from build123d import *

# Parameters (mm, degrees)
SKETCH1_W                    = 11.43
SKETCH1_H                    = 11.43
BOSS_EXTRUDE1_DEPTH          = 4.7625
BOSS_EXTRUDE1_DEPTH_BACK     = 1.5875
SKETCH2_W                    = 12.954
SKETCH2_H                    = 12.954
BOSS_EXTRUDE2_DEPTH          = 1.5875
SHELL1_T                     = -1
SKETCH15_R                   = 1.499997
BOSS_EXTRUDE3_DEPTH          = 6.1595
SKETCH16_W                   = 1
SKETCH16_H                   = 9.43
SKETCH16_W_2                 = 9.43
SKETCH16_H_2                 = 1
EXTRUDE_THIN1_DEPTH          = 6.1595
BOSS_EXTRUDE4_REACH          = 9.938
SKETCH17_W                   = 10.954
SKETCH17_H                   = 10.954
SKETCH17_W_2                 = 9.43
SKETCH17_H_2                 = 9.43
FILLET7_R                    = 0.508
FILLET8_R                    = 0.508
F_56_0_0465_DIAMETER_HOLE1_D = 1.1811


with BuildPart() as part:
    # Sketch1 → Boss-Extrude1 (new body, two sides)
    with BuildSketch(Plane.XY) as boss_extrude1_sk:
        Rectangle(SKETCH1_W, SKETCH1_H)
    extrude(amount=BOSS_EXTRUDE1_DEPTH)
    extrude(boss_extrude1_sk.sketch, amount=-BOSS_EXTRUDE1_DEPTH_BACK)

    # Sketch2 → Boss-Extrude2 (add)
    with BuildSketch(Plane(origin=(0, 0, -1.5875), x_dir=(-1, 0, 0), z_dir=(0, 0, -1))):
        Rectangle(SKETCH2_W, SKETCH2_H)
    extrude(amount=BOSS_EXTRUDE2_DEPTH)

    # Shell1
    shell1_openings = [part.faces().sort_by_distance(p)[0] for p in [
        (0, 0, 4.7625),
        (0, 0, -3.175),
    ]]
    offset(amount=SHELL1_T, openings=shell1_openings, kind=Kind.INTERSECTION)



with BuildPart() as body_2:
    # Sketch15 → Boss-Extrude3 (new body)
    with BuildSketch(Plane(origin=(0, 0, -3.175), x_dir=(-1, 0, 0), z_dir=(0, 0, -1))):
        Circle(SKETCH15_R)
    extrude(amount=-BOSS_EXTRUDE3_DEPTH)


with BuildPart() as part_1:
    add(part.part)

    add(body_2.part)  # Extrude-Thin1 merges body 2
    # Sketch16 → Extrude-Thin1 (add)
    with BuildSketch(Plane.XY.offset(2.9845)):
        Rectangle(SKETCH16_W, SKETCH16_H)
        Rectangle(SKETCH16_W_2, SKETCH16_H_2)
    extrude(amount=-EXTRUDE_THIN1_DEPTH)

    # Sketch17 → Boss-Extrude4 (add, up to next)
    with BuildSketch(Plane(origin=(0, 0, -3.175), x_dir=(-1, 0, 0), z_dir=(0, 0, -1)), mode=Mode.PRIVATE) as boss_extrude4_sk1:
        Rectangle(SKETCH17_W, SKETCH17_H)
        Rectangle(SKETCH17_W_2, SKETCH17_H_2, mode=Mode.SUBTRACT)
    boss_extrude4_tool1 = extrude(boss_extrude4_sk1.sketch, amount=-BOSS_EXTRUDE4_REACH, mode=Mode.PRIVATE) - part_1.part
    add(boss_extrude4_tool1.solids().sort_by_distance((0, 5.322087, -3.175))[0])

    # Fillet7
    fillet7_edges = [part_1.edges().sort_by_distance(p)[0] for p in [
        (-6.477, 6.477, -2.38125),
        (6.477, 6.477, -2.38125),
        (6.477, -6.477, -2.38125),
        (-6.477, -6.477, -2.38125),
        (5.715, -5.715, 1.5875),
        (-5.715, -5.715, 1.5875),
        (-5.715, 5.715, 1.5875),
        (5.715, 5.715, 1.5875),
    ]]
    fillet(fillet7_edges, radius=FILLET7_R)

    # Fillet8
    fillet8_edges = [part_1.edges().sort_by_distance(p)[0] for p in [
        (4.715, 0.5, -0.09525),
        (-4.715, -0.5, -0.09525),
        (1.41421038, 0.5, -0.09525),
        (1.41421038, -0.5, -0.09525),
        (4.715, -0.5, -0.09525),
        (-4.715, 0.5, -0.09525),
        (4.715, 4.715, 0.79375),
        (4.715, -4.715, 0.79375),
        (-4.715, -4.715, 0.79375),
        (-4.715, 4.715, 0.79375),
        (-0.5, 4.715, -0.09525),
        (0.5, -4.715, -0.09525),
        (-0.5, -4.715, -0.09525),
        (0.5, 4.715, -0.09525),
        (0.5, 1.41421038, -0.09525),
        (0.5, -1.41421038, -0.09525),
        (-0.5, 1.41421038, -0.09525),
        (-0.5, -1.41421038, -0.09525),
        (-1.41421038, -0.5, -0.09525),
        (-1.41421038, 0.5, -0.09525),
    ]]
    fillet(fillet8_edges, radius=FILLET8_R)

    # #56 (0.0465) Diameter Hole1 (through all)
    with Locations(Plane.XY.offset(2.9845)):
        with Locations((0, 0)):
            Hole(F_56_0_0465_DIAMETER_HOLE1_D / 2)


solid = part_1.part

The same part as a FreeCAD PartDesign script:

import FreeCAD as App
import Part
import Sketcher
Q = App.Units.Quantity


def edges_at(feature, points):
    """Names of the edges that pass closest to the given points."""
    edges = feature.Shape.Edges
    near = lambda p: min(range(len(edges)), key=lambda i: edges[i].distToShape(Part.Vertex(*p))[0])
    return sorted({f"Edge{near(p) + 1}" for p in points})


def faces_at(feature, points):
    """Names of the faces that lie closest to the given points."""
    faces = feature.Shape.Faces
    near = lambda p: min(range(len(faces)), key=lambda i: faces[i].distToShape(Part.Vertex(*p))[0])
    return sorted({f"Face{near(p) + 1}" for p in points})


def add_polygon(sketch, points):
    """Adds a closed chain of lines whose ends are joined by coincident constraints."""
    first, n = sketch.GeometryCount, len(points)
    for a, b in zip(points, points[1:] + points[:1]):
        sketch.addGeometry(Part.LineSegment(App.Vector(*a, 0), App.Vector(*b, 0)), False)
    for i in range(n):
        sketch.addConstraint(Sketcher.Constraint("Coincident", first + i, 2, first + (i + 1) % n, 1))

doc = App.newDocument("Part")
params = doc.addObject("Spreadsheet::Sheet", "Params")
for row, (alias, value) in enumerate([
    ("sketch1_width", "0.45 in"),
    ("pad1_length", "0.1875 in"),
    ("pad1_length2", "0.0625 in"),
    ("sketch2_width", "0.51 in"),
    ("pad2_length", "0.0625 in"),
    ("thickness_wall", "1 mm"),
    ("pad3_length", "0.2425 in"),
    ("pad4_length", "0.2425 in"),
    ("fillet_radius", "0.02 in"),
    ("fillet2_radius", "0.02 in"),
    ("hole_diameter", "0.0465 in"),
], start=1):
    params.set(f"A{row}", alias)
    params.set(f"B{row}", "=" + value)
    params.setAlias(f"B{row}", alias)

body = doc.addObject("PartDesign::Body", "Body")

# Sketch on XY plane
sketch1 = body.newObject("Sketcher::SketchObject", "Sketch")
sketch1.AttachmentSupport = (doc.getObject("XY_Plane"), [""])
sketch1.MapMode = "FlatFace"
add_polygon(sketch1, [(-6, 6), (-6, -6), (6, -6), (6, 6)])  # lines 0-3
sketch1.addConstraint(Sketcher.Constraint("Vertical", 0))
sketch1.addConstraint(Sketcher.Constraint("Horizontal", 1))
sketch1.addConstraint(Sketcher.Constraint("Vertical", 2))
sketch1.addConstraint(Sketcher.Constraint("Horizontal", 3))
sketch1.addConstraint(Sketcher.Constraint("Symmetric", 0, 2, 2, 2, -1, 1))
sketch1.addConstraint(Sketcher.Constraint("Equal", 3, 0))
sketch1.addConstraint(Sketcher.Constraint("DistanceX", 1, 1, 1, 2, Q("0.45 in")))
sketch1.setExpression("Constraints[10]", "Params.sketch1_width")
pad1 = body.newObject("PartDesign::Pad", "Pad")
pad1.Profile = sketch1
pad1.Type = "TwoLengths"
pad1.setExpression("Length", "Params.pad1_length")
pad1.setExpression("Length2", "Params.pad1_length2")

# Sketch on XY plane
sketch2 = body.newObject("Sketcher::SketchObject", "Sketch001")
sketch2.AttachmentSupport = (doc.getObject("XY_Plane"), [""])
sketch2.MapMode = "FlatFace"
sketch2.AttachmentOffset = App.Placement(App.Vector(0, 0, -0.0625 * 25.4), App.Rotation())
add_polygon(sketch2, [(6, 6), (6, -6), (-6, -6), (-6, 6)])  # lines 0-3
sketch2.addConstraint(Sketcher.Constraint("Vertical", 0))
sketch2.addConstraint(Sketcher.Constraint("Horizontal", 1))
sketch2.addConstraint(Sketcher.Constraint("Vertical", 2))
sketch2.addConstraint(Sketcher.Constraint("Horizontal", 3))
sketch2.addConstraint(Sketcher.Constraint("Symmetric", 0, 2, 2, 2, -1, 1))
sketch2.addConstraint(Sketcher.Constraint("Equal", 3, 0))
sketch2.addConstraint(Sketcher.Constraint("DistanceX", 1, 2, 1, 1, Q("0.51 in")))
sketch2.setExpression("Constraints[10]", "Params.sketch2_width")
pad2 = body.newObject("PartDesign::Pad", "Pad001")
pad2.Profile = sketch2
pad2.setExpression("Length", "Params.pad2_length")
pad2.Reversed = True
doc.recompute()

thickness = body.newObject("PartDesign::Thickness", "Thickness")
thickness.Base = (pad2, faces_at(pad2, [(0, 0, 4.763), (0, 0, -3.175)]))
thickness.setExpression("Value", "Params.thickness_wall")
thickness.Reversed = True
thickness.Join = "Intersection"
body2 = doc.addObject("PartDesign::Body", "Body001")

# Sketch on XY plane
sketch3 = body2.newObject("Sketcher::SketchObject", "Sketch002")
sketch3.AttachmentSupport = (doc.getObject("XY_Plane001"), [""])
sketch3.MapMode = "FlatFace"
sketch3.AttachmentOffset = App.Placement(App.Vector(0, 0, -0.125 * 25.4), App.Rotation())
sketch3.addGeometry(Part.Circle(App.Vector(0, 0, 0), App.Vector(0, 0, 1), 1.5), False)
sketch3.addConstraint(Sketcher.Constraint("Coincident", 0, 3, -1, 1))
sketch3.addConstraint(Sketcher.Constraint("Diameter", 0, 2.999994))
pad3 = body2.newObject("PartDesign::Pad", "Pad002")
pad3.Profile = sketch3
pad3.setExpression("Length", "Params.pad3_length")
body.AllowCompound = True
doc.recompute()

boolean = body.newObject("PartDesign::Boolean", "Boolean")
boolean.Type = "Fuse"
boolean.addObjects([body2])

# Sketch on XY plane
sketch4 = body.newObject("Sketcher::SketchObject", "Sketch003")
sketch4.AttachmentSupport = (doc.getObject("XY_Plane"), [""])
sketch4.MapMode = "FlatFace"
sketch4.AttachmentOffset = App.Placement(App.Vector(0, 0, 0.1175 * 25.4), App.Rotation())
add_polygon(sketch4, [(-0.5, -0.5), (-0.5, -4.7), (0.5, -4.7), (0.5, -0.5), (4.7, -0.5), (4.7, 0.5), (0.5, 0.5), (0.5, 4.7), (-0.5, 4.7), (-0.5, 0.5), (-4.7, 0.5), (-4.7, -0.5)])  # lines 0-11
sketch4.addConstraint(Sketcher.Constraint("Vertical", 0))
sketch4.addConstraint(Sketcher.Constraint("Horizontal", 1))
sketch4.addConstraint(Sketcher.Constraint("Vertical", 2))
sketch4.addConstraint(Sketcher.Constraint("Horizontal", 3))
sketch4.addConstraint(Sketcher.Constraint("Vertical", 4))
sketch4.addConstraint(Sketcher.Constraint("Horizontal", 5))
sketch4.addConstraint(Sketcher.Constraint("Vertical", 6))
sketch4.addConstraint(Sketcher.Constraint("Horizontal", 7))
sketch4.addConstraint(Sketcher.Constraint("Vertical", 8))
sketch4.addConstraint(Sketcher.Constraint("Horizontal", 9))
sketch4.addConstraint(Sketcher.Constraint("Vertical", 10))
sketch4.addConstraint(Sketcher.Constraint("Horizontal", 11))
sketch4.addConstraint(Sketcher.Constraint("Symmetric", 0, 2, 6, 2, -1, 1))
sketch4.addConstraint(Sketcher.Constraint("Symmetric", 2, 2, 8, 2, -1, 1))
sketch4.addConstraint(Sketcher.Constraint("Symmetric", 4, 2, 10, 2, -1, 1))
sketch4.addConstraint(Sketcher.Constraint("Symmetric", 5, 2, 8, 2, -2))
sketch4.addConstraint(Sketcher.Constraint("Equal", 11, 0))
sketch4.addConstraint(Sketcher.Constraint("Equal", 7, 4))
sketch4.addConstraint(Sketcher.Constraint("DistanceX", 1, 1, 1, 2, 1.0))
sketch4.addConstraint(Sketcher.Constraint("DistanceX", 3, 1, 3, 2, 4.215))
pad4 = body.newObject("PartDesign::Pad", "Pad003")
pad4.Profile = sketch4
pad4.setExpression("Length", "Params.pad4_length")
pad4.Reversed = True

# Sketch on XY plane
sketch5 = body.newObject("Sketcher::SketchObject", "Sketch004")
sketch5.AttachmentSupport = (doc.getObject("XY_Plane"), [""])
sketch5.MapMode = "FlatFace"
sketch5.AttachmentOffset = App.Placement(App.Vector(0, 0, -0.125 * 25.4), App.Rotation())
add_polygon(sketch5, [(5, 5), (5, -5), (-5, -5), (-5, 5)])  # lines 0-3
add_polygon(sketch5, [(-5, -5), (5, -5), (5, 5), (-5, 5)])  # lines 4-7
sketch5.addConstraint(Sketcher.Constraint("Vertical", 0))
sketch5.addConstraint(Sketcher.Constraint("Horizontal", 1))
sketch5.addConstraint(Sketcher.Constraint("Vertical", 2))
sketch5.addConstraint(Sketcher.Constraint("Horizontal", 3))
sketch5.addConstraint(Sketcher.Constraint("Horizontal", 4))
sketch5.addConstraint(Sketcher.Constraint("Vertical", 5))
sketch5.addConstraint(Sketcher.Constraint("Horizontal", 6))
sketch5.addConstraint(Sketcher.Constraint("Vertical", 7))
sketch5.addConstraint(Sketcher.Constraint("Symmetric", 0, 2, 2, 2, -1, 1))
sketch5.addConstraint(Sketcher.Constraint("Symmetric", 4, 2, 6, 2, -1, 1))
sketch5.addConstraint(Sketcher.Constraint("Equal", 3, 0))
sketch5.addConstraint(Sketcher.Constraint("Equal", 6, 5))
sketch5.addConstraint(Sketcher.Constraint("DistanceX", 4, 2, 0, 2, Q("0.03 in")))
sketch5.addConstraint(Sketcher.Constraint("DistanceX", 1, 2, 1, 1, 10.954))
pad5 = body.newObject("PartDesign::Pad", "Pad004")
pad5.Profile = sketch5
pad5.Type = "UpToFirst"
doc.recompute()

fillet = body.newObject("PartDesign::Fillet", "Fillet")
fillet.Base = (pad5, edges_at(pad5, [
    (-6.477, 6.477, -2.381),
    (6.477, 6.477, -2.381),
    (6.477, -6.477, -2.381),
    (-6.477, -6.477, -2.381),
    (5.715, -5.715, 1.587),
    (-5.715, -5.715, 1.587),
    (-5.715, 5.715, 1.587),
    (5.715, 5.715, 1.587),
]))
fillet.setExpression("Radius", "Params.fillet_radius")
doc.recompute()

fillet2 = body.newObject("PartDesign::Fillet", "Fillet001")
fillet2.Base = (fillet, edges_at(fillet, [
    (4.715, 0.5, -0.095),
    (-4.715, -0.5, -0.095),
    (1.414, 0.5, -0.095),
    (1.414, -0.5, -0.095),
    (4.715, -0.5, -0.095),
    (-4.715, 0.5, -0.095),
    (4.715, 4.715, 0.794),
    (4.715, -4.715, 0.794),
    (-4.715, -4.715, 0.794),
    (-4.715, 4.715, 0.794),
    (-0.5, 4.715, -0.095),
    (0.5, -4.715, -0.095),
    (-0.5, -4.715, -0.095),
    (0.5, 4.715, -0.095),
    (0.5, 1.414, -0.095),
    (0.5, -1.414, -0.095),
    (-0.5, 1.414, -0.095),
    (-0.5, -1.414, -0.095),
    (-1.414, -0.5, -0.095),
    (-1.414, 0.5, -0.095),
]))
fillet2.setExpression("Radius", "Params.fillet2_radius")

# Sketch on XY plane
sketch6 = body.newObject("Sketcher::SketchObject", "Sketch005")
sketch6.AttachmentSupport = (doc.getObject("XY_Plane"), [""])
sketch6.MapMode = "FlatFace"
sketch6.AttachmentOffset = App.Placement(App.Vector(0, 0, 0.1175 * 25.4), App.Rotation())
sketch6.addGeometry(Part.Circle(App.Vector(0, 0, 0), App.Vector(0, 0, 1), 0.6), False)
sketch6.addConstraint(Sketcher.Constraint("Coincident", 0, 3, -1, 1))
sketch6.addConstraint(Sketcher.Constraint("Diameter", 0, Q("0.0465 in")))
doc.recompute()
hole = body.newObject("PartDesign::Hole", "Hole")
hole.Profile = sketch6
hole.ThreadType = "None"
hole.setExpression("Diameter", "Params.hole_diameter")
hole.DepthType = "ThroughAll"

doc.recompute()
